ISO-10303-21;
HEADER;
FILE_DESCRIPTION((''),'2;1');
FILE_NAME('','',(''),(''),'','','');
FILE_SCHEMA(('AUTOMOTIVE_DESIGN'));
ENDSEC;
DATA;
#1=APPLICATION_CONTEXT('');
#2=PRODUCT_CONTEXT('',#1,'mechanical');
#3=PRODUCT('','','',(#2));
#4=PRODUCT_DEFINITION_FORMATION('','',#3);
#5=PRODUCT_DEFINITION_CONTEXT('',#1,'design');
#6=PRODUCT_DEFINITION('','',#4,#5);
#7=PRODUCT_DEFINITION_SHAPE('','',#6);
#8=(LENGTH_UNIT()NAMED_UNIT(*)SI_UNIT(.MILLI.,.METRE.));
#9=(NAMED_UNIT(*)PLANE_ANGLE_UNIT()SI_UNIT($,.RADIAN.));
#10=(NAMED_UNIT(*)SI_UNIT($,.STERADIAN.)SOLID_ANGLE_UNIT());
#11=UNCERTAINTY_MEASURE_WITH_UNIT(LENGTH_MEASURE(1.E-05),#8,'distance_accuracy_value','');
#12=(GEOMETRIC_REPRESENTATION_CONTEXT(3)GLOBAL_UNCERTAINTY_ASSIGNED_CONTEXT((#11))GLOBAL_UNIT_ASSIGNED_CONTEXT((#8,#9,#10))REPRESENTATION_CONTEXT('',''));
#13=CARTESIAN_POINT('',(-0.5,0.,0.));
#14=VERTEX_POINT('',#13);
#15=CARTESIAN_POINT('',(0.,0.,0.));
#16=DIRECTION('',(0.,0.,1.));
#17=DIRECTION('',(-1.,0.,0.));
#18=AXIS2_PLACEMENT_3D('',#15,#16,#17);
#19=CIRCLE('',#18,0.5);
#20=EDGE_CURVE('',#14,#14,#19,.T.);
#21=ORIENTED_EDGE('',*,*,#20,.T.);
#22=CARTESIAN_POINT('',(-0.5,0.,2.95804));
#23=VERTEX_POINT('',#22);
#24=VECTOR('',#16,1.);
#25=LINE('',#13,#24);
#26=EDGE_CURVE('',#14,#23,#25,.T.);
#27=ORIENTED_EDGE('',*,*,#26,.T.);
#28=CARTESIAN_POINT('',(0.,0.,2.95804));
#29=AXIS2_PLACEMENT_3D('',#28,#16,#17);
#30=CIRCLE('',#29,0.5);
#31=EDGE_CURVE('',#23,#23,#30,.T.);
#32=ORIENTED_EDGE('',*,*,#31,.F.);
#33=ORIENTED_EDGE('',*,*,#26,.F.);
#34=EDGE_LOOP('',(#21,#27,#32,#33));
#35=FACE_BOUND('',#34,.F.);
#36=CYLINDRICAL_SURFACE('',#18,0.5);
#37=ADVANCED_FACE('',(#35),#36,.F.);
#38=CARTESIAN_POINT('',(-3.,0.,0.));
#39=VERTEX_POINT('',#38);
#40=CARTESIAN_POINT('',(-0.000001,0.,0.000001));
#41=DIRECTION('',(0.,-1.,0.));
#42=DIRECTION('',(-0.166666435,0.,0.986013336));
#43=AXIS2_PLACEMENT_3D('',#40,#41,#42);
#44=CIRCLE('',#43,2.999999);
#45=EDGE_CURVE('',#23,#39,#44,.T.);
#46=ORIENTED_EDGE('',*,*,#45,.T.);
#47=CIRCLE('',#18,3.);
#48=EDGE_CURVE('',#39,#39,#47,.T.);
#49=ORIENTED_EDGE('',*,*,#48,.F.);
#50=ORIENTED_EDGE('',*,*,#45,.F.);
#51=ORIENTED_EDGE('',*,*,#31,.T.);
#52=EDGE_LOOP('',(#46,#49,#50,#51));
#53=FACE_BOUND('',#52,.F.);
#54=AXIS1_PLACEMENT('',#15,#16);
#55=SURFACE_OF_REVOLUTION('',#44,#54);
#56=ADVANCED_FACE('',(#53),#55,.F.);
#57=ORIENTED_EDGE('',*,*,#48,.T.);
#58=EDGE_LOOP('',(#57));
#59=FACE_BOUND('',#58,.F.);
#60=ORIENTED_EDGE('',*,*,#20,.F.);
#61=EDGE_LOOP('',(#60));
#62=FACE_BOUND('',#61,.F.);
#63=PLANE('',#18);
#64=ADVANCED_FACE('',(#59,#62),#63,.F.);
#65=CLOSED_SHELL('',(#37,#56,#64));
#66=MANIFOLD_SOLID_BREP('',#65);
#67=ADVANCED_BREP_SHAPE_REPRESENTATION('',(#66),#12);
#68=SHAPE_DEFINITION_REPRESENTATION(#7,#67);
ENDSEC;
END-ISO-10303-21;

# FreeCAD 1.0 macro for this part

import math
import FreeCAD as App
import Part
import Sketcher
Q = App.Units.Quantity

doc = App.newDocument("Part")
params = doc.addObject("Spreadsheet::Sheet", "Params")
for row, (alias, value) in enumerate([
    ("sketch1_radius", "2.999999 mm"),
    ("sketch1_width", "2.5 mm"),
    ("revolution_angle", "360 deg"),
], start=1):
    params.set(f"A{row}", alias)
    params.set(f"B{row}", "=" + value)
    params.setAlias(f"B{row}", alias)

body = doc.addObject("PartDesign::Body", "Body")

# Sketch on XZ plane
sketch1 = body.newObject("Sketcher::SketchObject", "Sketch")
sketch1.AttachmentSupport = (doc.getObject("XZ_Plane"), [""])
sketch1.MapMode = "FlatFace"
sketch1.addGeometry(Part.ArcOfCircle(Part.Circle(App.Vector(0, 0, 0), App.Vector(0, 0, 1), 3), math.radians(100), math.radians(180)), False)
sketch1.addGeometry(Part.LineSegment(App.Vector(-3, 0, 0), App.Vector(-0.5, 0, 0)), False)
sketch1.addGeometry(Part.LineSegment(App.Vector(-0.5, 0, 0), App.Vector(-0.5, 3, 0)), False)
sketch1.addConstraint(Sketcher.Constraint("Coincident", 0, 2, 1, 1))
sketch1.addConstraint(Sketcher.Constraint("Coincident", 1, 2, 2, 1))
sketch1.addConstraint(Sketcher.Constraint("Coincident", 2, 2, 0, 1))
sketch1.addConstraint(Sketcher.Constraint("Horizontal", 1))
sketch1.addConstraint(Sketcher.Constraint("Vertical", 2))
sketch1.addConstraint(Sketcher.Constraint("Coincident", 0, 3, -1, 1))
sketch1.addConstraint(Sketcher.Constraint("PointOnObject", 0, 2, -1))
sketch1.addConstraint(Sketcher.Constraint("Radius", 0, Q("2.999999 mm")))
sketch1.addConstraint(Sketcher.Constraint("DistanceX", 1, 1, 1, 2, Q("2.5 mm")))
sketch1.setExpression("Constraints[7]", "Params.sketch1_radius")
sketch1.setExpression("Constraints[8]", "Params.sketch1_width")
revolution = body.newObject("PartDesign::Revolution", "Revolution")
revolution.Profile = sketch1
revolution.ReferenceAxis = (sketch1, ["V_Axis"])
revolution.setExpression("Angle", "Params.revolution_angle")

doc.recompute()
